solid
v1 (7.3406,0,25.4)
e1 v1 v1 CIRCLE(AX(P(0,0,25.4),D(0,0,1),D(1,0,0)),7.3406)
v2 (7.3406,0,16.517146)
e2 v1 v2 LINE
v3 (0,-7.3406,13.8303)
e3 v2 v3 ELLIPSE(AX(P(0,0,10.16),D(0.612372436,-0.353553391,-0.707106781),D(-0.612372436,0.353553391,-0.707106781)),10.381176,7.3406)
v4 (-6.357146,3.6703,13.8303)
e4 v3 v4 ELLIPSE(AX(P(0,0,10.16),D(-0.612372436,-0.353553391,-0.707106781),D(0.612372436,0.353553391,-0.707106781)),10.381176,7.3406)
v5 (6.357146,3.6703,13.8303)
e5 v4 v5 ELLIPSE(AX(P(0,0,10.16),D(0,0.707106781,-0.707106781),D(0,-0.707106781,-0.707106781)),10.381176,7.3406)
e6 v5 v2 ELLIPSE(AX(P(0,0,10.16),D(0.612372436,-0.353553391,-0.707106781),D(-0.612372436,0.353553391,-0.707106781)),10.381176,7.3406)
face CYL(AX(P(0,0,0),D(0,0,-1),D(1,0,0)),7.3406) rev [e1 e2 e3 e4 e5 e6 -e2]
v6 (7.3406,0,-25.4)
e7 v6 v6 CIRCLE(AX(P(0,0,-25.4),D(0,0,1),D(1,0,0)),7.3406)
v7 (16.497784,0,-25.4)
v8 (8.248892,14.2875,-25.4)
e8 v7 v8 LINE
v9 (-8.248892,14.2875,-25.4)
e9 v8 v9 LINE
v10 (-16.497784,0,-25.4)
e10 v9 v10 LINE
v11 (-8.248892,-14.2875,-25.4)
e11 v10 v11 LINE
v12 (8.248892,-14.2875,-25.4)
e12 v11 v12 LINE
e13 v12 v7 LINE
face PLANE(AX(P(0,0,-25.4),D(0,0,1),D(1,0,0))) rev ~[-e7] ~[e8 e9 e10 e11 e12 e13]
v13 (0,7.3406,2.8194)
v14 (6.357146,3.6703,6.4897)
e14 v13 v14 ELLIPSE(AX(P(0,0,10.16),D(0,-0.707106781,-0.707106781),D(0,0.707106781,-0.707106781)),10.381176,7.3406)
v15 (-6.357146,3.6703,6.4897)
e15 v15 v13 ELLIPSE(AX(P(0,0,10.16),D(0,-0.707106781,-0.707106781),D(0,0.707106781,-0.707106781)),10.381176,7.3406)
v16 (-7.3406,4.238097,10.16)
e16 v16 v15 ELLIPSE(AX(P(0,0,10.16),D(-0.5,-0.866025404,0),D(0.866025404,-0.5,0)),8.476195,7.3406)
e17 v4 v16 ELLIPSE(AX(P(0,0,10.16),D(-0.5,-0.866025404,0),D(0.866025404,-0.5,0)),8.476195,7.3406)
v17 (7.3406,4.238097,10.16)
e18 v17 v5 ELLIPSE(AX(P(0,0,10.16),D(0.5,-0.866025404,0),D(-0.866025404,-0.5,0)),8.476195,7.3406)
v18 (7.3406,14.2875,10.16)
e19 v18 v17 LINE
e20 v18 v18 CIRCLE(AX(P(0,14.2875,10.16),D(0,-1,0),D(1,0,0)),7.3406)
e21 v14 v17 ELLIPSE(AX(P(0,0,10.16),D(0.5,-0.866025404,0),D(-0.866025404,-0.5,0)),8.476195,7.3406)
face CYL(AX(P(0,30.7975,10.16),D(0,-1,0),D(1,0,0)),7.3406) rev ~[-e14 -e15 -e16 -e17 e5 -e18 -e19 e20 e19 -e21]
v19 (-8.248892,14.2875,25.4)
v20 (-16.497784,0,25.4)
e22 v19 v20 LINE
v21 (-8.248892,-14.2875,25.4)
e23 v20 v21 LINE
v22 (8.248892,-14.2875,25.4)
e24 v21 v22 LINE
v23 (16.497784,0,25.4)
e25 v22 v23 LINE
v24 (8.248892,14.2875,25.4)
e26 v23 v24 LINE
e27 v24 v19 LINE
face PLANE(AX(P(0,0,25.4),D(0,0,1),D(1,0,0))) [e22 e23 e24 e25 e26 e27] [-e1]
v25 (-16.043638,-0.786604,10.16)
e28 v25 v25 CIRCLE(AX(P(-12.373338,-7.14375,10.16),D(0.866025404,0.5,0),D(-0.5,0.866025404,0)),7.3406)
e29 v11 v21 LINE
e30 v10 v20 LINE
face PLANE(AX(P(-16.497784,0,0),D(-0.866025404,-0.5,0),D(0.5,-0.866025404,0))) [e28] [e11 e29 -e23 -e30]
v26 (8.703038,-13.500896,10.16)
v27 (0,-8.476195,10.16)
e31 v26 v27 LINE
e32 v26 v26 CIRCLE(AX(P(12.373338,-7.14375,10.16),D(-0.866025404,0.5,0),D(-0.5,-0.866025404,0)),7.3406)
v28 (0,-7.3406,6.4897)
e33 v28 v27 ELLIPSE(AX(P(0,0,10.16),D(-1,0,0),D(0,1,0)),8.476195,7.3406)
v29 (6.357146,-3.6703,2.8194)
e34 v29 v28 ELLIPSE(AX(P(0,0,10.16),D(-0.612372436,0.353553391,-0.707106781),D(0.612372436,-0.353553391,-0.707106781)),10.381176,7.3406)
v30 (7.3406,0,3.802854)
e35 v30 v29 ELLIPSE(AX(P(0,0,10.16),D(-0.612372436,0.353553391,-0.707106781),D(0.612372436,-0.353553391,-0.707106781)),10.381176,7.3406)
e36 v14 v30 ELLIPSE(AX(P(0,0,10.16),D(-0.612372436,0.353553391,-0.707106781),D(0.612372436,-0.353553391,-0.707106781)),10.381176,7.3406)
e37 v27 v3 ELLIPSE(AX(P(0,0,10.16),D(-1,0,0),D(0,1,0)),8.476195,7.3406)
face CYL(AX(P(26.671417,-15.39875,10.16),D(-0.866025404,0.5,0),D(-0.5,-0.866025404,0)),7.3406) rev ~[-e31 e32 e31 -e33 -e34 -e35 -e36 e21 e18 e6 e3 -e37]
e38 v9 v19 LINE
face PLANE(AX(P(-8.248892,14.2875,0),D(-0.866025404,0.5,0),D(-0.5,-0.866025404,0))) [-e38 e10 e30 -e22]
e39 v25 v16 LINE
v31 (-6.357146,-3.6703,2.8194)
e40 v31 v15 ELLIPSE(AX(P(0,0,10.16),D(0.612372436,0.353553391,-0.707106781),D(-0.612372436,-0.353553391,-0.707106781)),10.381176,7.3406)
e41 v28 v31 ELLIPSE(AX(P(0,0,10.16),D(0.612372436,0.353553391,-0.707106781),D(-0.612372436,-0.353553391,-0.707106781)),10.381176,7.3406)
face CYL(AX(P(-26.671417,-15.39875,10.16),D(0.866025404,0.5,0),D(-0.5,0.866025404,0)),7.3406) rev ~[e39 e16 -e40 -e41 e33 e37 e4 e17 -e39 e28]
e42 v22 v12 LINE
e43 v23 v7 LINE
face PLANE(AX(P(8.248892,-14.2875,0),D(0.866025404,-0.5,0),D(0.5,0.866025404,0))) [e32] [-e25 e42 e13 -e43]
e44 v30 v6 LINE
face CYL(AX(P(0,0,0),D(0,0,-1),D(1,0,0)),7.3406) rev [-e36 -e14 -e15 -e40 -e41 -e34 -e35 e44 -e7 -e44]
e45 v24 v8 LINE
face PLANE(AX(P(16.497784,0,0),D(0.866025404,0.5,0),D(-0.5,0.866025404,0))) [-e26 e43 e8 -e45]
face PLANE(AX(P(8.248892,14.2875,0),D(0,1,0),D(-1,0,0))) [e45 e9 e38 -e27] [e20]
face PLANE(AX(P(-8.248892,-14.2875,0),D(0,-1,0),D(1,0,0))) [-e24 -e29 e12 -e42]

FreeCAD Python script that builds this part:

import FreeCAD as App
import Part
import Sketcher
Q = App.Units.Quantity


def add_polygon(sketch, points):
    """Adds a closed chain of lines whose ends are joined by coincident constraints."""
    first, n = sketch.GeometryCount, len(points)
    for a, b in zip(points, points[1:] + points[:1]):
        sketch.addGeometry(Part.LineSegment(App.Vector(*a, 0), App.Vector(*b, 0)), False)
    for i in range(n):
        sketch.addConstraint(Sketcher.Constraint("Coincident", first + i, 2, first + (i + 1) % n, 1))

doc = App.newDocument("Part")
body = doc.addObject("PartDesign::Body", "Body")

# Sketch on XY plane
sketch1 = body.newObject("Sketcher::SketchObject", "Sketch")
sketch1.AttachmentSupport = (doc.getObject("XY_Plane"), [""])
sketch1.MapMode = "FlatFace"
add_polygon(sketch1, [(8.248892, 14.2875), (-8.248892, 14.2875), (-16.497784, 0), (-8.248892, -14.2875), (8.248892, -14.2875), (16.497784, 0)])  # lines 0-5
sketch1.addGeometry(Part.Circle(App.Vector(0, 0, 0), App.Vector(0, 0, 1), 7.3406), False)  # 6
sketch1.addConstraint([
    Sketcher.Constraint("Horizontal", 0),
    Sketcher.Constraint("Horizontal", 3),
    Sketcher.Constraint("Coincident", 6, 3, -1, 1),
    Sketcher.Constraint("Symmetric", 0, 2, 3, 2, -1, 1),
    Sketcher.Constraint("Symmetric", 1, 2, 4, 2, -1, 1),
    Sketcher.Constraint("PointOnObject", 1, 2, -1),
    Sketcher.Constraint("Parallel", 2, 5),
    Sketcher.Constraint("Vertical", 0, 2, 2, 2),
    Sketcher.Constraint("Diameter", 6, Q("0.578 in")),
    Sketcher.Constraint("Angle", 1, Q("-120 deg")),
    Sketcher.Constraint("DistanceY", -1, 1, 0, 2, Q("0.5625 in")),
    Sketcher.Constraint("DistanceX", 0, 2, 0, 1, 16.497784),
])
pad1 = body.newObject("PartDesign::Pad", "Pad")
pad1.Profile = sketch1
pad1.Length = Q("2 in")
pad1.Midplane = True

# Sketch on XZ plane
sketch2 = body.newObject("Sketcher::SketchObject", "Sketch001")
sketch2.AttachmentSupport = (doc.getObject("XZ_Plane"), [""])
sketch2.MapMode = "FlatFace"
sketch2.AttachmentOffset = App.Placement(App.Vector(0, 0, -0.5625 * 25.4), App.Rotation())
sketch2.addGeometry(Part.Circle(App.Vector(0, 10.16, 0), App.Vector(0, 0, 1), 7.3406), False)
sketch2.addConstraint([
    Sketcher.Constraint("PointOnObject", 0, 3, -2),
    Sketcher.Constraint("Diameter", 0, Q("0.578 in")),
    Sketcher.Constraint("DistanceY", -1, 1, 0, 3, Q("0.4 in")),
])
doc.recompute()
hole = body.newObject("PartDesign::Hole", "Hole")
hole.Profile = sketch2
hole.ThreadType = "None"
hole.Diameter = Q("0.578 in")
hole.DepthType = "Dimension"
hole.Depth = Q("0.65 in")
hole.DrillPoint = "Angled"
hole.DrillPointAngle = 118
hole.Reversed = True

# Sketch on an angled plane
sketch3 = body.newObject("Sketcher::SketchObject", "Sketch002")
sketch3.Placement = App.Placement(App.Vector(12.373338, -7.14375, 0), App.Rotation(App.Vector(0.5, 0.866025404, 0), App.Vector(0, 0, 1), App.Vector(0.866025404, -0.5, 0), "ZXY"))
sketch3.addGeometry(Part.Circle(App.Vector(0, 10.16, 0), App.Vector(0, 0, 1), 7.3406), False)
sketch3.addConstraint([
    Sketcher.Constraint("PointOnObject", 0, 3, -2),
    Sketcher.Constraint("Diameter", 0, Q("0.578 in")),
    Sketcher.Constraint("DistanceY", -1, 1, 0, 3, Q("0.4 in")),
])
doc.recompute()
hole2 = body.newObject("PartDesign::Hole", "Hole001")
hole2.Profile = sketch3
hole2.ThreadType = "None"
hole2.Diameter = Q("0.578 in")
hole2.DepthType = "Dimension"
hole2.Depth = Q("0.65 in")
hole2.DrillPoint = "Angled"
hole2.DrillPointAngle = 118

# Sketch on an angled plane
sketch4 = body.newObject("Sketcher::SketchObject", "Sketch003")
sketch4.Placement = App.Placement(App.Vector(-12.373338, -7.14375, 0), App.Rotation(App.Vector(0.5, -0.866025404, 0), App.Vector(0, 0, 1), App.Vector(-0.866025404, -0.5, 0), "ZXY"))
sketch4.addGeometry(Part.Circle(App.Vector(0, 10.16, 0), App.Vector(0, 0, 1), 7.3406), False)
sketch4.addConstraint([
    Sketcher.Constraint("PointOnObject", 0, 3, -2),
    Sketcher.Constraint("Diameter", 0, Q("0.578 in")),
    Sketcher.Constraint("DistanceY", -1, 1, 0, 3, Q("0.4 in")),
])
doc.recompute()
hole3 = body.newObject("PartDesign::Hole", "Hole002")
hole3.Profile = sketch4
hole3.ThreadType = "None"
hole3.Diameter = Q("0.578 in")
hole3.DepthType = "Dimension"
hole3.Depth = Q("0.65 in")
hole3.DrillPoint = "Angled"
hole3.DrillPointAngle = 118

doc.recompute()
